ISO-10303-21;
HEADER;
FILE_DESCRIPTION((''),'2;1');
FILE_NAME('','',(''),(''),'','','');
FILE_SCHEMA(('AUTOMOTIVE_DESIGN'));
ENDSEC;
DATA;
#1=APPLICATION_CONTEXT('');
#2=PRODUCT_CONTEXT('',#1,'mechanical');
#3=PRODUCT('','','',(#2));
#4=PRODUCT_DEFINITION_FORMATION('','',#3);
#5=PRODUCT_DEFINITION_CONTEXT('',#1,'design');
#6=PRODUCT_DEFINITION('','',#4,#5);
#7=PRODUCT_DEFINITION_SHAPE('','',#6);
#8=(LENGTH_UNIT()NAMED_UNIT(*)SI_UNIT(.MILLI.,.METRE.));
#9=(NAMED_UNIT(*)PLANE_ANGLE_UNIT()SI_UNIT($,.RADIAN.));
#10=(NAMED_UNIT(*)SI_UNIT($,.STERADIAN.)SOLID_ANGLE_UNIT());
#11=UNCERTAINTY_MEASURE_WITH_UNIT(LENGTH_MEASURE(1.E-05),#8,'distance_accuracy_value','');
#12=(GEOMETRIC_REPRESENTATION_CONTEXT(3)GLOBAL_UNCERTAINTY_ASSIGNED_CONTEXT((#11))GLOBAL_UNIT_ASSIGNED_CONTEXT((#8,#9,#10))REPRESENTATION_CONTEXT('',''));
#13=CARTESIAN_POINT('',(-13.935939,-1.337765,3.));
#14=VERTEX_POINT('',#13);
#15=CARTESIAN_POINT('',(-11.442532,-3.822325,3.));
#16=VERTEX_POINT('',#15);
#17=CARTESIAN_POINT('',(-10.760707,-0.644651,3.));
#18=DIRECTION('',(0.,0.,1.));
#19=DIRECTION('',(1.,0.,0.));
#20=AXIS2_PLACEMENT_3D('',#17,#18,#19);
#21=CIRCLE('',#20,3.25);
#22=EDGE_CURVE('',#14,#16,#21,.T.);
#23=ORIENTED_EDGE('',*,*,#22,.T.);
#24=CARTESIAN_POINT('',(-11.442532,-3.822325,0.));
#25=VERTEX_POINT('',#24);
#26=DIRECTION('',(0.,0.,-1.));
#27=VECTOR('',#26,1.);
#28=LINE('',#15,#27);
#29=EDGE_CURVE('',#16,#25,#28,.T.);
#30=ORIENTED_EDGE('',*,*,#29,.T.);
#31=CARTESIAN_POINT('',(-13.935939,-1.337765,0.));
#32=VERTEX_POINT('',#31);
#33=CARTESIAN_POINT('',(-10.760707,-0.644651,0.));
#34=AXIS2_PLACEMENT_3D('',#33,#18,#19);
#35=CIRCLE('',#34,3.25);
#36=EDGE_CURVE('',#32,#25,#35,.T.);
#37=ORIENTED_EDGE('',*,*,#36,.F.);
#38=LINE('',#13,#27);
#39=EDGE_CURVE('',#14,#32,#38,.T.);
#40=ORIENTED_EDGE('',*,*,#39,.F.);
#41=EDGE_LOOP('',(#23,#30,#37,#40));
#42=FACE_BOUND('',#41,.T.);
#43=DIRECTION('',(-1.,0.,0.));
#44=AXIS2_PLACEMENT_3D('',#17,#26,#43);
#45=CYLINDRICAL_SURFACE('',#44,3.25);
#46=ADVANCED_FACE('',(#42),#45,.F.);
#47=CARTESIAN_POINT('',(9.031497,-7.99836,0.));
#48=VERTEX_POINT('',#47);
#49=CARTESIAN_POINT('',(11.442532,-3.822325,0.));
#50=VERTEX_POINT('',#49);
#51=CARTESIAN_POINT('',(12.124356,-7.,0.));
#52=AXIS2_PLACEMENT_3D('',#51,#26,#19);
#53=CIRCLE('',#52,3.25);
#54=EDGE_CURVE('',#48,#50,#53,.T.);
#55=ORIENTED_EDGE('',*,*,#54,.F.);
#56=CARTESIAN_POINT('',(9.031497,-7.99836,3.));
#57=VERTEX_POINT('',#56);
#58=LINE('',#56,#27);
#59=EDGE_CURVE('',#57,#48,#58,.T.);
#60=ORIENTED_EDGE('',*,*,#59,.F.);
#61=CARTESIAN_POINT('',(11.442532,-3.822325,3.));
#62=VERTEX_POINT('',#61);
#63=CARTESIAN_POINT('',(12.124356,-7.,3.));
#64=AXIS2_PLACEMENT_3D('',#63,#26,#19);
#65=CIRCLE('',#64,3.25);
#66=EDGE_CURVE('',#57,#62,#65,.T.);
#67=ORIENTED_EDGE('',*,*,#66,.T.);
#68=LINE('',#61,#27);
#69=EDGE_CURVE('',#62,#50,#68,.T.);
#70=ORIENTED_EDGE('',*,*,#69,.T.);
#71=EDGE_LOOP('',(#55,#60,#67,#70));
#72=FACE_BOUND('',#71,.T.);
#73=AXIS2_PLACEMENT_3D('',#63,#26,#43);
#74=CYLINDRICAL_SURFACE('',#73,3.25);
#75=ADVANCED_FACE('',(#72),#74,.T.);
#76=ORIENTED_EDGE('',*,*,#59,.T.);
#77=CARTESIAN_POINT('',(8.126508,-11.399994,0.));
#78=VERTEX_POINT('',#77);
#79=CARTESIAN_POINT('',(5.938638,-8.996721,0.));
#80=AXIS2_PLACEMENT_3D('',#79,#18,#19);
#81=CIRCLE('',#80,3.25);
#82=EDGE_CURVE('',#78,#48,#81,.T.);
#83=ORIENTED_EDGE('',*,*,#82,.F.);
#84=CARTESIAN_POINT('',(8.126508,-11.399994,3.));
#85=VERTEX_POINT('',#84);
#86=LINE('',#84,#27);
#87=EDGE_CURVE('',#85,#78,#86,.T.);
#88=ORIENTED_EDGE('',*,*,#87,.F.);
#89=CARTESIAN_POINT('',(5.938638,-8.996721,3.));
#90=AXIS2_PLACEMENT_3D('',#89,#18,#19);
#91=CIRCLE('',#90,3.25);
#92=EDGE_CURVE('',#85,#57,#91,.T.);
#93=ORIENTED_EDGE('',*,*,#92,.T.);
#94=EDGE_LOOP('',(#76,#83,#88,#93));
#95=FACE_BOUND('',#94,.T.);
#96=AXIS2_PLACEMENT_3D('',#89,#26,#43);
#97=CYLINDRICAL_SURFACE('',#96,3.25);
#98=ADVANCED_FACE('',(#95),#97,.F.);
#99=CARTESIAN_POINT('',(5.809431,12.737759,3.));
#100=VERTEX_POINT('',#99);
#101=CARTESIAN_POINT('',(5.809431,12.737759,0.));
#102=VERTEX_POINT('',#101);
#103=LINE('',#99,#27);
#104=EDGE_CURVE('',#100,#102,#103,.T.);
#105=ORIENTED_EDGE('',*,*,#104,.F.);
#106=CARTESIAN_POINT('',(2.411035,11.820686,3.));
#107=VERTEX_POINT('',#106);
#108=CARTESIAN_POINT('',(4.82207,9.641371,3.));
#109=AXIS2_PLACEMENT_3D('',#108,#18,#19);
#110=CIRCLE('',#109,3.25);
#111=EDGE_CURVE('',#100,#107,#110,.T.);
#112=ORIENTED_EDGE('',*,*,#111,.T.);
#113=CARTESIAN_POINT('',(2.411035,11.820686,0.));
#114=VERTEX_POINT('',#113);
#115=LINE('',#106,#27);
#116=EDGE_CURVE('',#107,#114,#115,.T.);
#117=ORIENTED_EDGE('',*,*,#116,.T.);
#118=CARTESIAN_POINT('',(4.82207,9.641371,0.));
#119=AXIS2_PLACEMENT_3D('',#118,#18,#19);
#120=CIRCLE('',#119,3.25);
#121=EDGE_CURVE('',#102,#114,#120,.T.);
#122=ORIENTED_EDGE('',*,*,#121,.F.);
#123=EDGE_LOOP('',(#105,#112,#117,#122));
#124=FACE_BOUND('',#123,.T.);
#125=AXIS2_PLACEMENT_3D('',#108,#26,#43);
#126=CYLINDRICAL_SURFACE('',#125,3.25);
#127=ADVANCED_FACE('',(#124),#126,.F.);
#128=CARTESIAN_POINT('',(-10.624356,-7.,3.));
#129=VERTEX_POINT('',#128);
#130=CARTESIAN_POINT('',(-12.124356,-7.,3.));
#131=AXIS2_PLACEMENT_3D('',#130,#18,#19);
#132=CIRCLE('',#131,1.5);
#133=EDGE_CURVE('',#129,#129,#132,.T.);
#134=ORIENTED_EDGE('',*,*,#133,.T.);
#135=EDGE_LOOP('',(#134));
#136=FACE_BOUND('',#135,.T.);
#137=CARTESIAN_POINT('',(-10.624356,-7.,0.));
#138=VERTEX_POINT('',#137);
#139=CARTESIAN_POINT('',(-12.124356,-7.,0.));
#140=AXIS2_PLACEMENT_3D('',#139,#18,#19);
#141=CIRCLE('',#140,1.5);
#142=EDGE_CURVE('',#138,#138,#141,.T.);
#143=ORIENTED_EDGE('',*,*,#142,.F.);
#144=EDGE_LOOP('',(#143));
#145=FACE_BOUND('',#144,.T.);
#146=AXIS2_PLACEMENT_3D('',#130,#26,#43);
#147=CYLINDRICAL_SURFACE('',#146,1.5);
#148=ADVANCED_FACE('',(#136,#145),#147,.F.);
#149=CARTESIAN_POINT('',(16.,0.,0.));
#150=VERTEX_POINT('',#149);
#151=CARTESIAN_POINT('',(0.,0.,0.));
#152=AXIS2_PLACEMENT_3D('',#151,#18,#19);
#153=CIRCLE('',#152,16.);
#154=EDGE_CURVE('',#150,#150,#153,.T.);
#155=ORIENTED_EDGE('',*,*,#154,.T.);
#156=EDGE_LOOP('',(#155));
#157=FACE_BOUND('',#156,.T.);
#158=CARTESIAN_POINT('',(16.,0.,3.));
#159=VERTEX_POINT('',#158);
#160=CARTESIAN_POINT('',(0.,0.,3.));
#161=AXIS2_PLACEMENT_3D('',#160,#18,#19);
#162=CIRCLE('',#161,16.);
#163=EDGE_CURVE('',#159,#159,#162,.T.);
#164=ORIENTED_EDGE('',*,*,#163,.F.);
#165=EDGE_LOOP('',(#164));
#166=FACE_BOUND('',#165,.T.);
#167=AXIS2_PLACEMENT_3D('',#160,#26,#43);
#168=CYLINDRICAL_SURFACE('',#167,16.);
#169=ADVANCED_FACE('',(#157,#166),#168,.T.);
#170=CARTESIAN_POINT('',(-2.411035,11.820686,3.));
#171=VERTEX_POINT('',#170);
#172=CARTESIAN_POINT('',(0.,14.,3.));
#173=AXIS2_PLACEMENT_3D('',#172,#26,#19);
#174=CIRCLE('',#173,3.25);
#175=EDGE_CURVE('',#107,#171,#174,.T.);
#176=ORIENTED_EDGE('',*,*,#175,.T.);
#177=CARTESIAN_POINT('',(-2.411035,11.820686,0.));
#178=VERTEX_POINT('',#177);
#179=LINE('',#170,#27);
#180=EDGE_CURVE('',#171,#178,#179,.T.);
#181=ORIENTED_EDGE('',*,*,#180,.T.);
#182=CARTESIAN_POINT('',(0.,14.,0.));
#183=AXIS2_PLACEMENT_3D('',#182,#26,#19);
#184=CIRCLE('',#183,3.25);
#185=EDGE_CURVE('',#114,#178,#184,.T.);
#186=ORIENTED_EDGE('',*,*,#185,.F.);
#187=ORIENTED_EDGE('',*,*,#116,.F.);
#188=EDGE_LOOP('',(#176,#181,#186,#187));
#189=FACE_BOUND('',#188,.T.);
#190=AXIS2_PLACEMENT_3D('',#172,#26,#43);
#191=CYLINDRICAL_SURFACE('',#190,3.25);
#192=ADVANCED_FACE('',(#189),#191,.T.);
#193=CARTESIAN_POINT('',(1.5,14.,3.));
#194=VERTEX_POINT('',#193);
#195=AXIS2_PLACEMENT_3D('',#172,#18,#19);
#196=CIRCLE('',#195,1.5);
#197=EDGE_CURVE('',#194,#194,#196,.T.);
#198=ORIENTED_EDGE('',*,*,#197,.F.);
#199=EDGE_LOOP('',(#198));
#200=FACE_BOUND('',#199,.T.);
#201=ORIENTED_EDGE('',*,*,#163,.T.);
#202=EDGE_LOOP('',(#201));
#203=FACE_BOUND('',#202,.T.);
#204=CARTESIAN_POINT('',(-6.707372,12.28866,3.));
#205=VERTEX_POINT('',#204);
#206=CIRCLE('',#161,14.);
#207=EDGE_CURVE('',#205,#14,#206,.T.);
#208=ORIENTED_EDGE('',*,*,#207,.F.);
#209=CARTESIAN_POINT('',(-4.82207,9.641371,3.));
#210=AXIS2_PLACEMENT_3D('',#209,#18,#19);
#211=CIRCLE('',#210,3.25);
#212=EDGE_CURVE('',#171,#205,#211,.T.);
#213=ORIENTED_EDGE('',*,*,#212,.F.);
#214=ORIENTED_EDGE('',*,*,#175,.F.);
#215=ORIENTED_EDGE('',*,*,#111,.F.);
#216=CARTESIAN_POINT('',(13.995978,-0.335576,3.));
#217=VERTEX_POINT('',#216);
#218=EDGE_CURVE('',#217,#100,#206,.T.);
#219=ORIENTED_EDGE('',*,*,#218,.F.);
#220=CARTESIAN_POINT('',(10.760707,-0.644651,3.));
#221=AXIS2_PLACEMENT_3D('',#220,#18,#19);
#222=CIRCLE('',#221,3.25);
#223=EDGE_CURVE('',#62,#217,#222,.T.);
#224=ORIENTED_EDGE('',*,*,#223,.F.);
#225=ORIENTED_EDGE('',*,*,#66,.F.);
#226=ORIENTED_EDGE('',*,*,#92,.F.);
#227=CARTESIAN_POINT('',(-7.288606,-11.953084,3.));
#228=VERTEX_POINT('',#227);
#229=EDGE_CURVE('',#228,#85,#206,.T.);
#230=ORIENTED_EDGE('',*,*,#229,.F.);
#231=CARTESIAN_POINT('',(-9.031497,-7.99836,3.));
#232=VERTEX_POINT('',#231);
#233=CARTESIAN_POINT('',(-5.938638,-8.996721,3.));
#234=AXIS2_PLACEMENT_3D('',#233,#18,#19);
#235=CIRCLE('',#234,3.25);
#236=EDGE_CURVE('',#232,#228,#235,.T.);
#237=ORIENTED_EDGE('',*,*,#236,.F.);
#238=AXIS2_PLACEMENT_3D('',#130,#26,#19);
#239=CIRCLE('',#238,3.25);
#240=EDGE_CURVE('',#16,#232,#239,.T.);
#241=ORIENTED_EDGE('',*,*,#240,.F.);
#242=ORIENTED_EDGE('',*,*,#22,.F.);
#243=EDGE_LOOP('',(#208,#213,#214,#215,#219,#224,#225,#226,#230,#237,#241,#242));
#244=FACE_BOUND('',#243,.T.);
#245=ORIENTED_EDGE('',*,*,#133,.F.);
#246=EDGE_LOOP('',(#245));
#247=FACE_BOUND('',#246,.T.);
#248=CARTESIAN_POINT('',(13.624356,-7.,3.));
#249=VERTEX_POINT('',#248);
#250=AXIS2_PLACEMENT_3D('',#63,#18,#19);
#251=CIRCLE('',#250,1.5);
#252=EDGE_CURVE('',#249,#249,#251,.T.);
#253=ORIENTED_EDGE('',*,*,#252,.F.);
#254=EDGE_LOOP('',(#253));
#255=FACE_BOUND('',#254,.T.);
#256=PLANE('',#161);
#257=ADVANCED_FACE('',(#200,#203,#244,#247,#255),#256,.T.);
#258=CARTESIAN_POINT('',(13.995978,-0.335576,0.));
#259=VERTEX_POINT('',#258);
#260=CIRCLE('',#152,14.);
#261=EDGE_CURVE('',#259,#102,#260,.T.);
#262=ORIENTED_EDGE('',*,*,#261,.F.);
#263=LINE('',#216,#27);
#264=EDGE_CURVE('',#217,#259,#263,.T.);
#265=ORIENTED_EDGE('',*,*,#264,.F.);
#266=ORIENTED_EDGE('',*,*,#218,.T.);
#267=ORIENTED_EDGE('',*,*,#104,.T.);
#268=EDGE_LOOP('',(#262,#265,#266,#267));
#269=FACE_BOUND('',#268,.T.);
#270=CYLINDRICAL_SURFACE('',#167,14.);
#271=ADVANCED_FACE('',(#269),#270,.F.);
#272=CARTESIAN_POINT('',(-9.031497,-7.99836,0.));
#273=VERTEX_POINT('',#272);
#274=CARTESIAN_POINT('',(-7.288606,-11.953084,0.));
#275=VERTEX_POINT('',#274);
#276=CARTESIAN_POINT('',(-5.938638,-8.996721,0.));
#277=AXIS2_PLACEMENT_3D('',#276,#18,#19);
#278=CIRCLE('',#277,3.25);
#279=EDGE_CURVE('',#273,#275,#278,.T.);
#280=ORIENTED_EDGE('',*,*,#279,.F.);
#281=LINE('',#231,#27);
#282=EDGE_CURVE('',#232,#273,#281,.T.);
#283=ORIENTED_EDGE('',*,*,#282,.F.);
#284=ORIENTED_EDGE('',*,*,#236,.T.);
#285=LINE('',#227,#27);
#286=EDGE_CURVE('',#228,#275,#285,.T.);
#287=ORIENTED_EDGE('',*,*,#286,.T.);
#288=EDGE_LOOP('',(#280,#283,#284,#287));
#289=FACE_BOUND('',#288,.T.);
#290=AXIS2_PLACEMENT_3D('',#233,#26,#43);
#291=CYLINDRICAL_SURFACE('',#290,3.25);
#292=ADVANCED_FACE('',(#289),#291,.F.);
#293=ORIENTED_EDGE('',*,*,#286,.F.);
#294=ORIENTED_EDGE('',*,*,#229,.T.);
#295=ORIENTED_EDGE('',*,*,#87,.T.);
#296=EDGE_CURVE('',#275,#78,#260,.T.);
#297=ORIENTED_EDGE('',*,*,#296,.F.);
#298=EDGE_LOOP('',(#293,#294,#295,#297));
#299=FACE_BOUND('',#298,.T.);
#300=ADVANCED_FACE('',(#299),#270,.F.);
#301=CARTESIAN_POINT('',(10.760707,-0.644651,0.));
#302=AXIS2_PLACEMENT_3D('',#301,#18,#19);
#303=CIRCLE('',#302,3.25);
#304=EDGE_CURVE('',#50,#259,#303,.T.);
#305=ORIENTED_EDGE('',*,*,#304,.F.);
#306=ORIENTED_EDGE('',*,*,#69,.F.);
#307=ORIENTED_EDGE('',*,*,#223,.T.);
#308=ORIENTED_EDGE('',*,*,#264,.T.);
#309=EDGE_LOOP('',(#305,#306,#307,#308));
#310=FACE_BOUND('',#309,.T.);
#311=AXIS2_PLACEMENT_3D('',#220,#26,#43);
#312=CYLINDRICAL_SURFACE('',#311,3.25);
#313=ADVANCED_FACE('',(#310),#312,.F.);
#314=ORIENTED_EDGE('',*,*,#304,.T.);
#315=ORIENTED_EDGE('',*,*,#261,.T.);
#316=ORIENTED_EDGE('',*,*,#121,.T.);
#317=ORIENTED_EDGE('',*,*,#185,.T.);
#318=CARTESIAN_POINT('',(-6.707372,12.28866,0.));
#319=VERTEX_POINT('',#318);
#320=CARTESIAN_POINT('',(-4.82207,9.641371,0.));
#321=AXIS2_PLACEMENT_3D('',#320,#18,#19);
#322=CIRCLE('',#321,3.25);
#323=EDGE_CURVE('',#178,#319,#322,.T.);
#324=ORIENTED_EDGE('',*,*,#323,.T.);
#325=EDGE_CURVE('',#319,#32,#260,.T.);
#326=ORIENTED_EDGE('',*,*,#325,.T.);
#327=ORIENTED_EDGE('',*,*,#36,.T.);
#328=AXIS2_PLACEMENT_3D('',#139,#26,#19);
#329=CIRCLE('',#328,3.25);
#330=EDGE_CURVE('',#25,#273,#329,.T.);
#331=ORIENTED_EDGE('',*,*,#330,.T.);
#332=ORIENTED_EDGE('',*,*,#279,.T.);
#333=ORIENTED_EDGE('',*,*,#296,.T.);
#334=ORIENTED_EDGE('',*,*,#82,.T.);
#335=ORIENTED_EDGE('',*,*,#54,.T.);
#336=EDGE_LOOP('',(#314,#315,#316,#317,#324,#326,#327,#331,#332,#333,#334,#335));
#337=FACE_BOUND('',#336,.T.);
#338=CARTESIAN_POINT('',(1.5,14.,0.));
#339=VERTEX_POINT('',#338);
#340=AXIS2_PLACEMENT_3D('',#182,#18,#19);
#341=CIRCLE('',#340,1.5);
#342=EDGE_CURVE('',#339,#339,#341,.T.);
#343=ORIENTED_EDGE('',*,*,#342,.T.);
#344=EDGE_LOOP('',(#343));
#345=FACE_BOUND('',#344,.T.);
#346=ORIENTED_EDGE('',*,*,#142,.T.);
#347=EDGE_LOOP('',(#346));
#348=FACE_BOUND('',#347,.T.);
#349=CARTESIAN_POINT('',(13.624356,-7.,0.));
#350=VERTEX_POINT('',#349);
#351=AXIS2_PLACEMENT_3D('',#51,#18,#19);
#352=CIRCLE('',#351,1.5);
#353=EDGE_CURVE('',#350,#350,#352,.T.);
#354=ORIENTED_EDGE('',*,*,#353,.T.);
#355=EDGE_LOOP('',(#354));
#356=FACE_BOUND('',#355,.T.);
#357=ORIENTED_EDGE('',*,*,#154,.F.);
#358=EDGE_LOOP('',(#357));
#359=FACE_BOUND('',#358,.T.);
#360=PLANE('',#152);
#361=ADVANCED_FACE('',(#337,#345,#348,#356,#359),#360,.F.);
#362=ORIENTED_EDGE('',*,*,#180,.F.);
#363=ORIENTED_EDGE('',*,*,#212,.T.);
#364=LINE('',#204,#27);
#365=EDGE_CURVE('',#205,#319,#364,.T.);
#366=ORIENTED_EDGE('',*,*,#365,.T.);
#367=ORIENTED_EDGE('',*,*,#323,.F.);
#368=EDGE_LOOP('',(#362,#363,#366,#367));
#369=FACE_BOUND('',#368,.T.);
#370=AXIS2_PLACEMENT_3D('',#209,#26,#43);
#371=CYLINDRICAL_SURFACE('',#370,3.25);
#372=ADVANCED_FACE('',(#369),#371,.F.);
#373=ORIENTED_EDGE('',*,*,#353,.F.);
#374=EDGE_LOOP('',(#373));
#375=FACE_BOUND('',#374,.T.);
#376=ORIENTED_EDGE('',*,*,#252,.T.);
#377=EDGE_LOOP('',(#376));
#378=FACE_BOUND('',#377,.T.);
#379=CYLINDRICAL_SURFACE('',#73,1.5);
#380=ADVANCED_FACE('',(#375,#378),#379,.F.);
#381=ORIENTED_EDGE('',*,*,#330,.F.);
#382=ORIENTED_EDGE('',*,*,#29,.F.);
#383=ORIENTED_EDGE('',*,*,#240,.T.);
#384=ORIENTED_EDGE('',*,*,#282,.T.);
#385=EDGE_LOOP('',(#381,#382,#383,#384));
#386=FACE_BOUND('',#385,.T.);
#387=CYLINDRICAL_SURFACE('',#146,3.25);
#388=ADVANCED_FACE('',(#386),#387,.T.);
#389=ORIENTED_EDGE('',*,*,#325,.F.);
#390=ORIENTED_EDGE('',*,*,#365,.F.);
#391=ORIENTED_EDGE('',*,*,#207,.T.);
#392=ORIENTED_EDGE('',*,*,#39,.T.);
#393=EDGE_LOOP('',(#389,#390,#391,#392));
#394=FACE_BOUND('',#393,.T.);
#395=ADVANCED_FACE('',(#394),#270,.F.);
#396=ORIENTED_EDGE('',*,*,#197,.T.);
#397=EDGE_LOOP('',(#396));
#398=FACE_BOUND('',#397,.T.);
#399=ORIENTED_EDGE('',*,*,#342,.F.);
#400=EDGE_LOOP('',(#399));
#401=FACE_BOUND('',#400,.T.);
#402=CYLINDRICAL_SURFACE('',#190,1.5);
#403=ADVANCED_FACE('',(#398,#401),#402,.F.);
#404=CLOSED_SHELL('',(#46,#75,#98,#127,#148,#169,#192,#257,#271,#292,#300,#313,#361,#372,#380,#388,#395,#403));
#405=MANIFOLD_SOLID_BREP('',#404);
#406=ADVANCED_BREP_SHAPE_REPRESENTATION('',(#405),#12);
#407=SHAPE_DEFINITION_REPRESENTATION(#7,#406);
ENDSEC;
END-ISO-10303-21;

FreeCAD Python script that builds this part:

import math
import FreeCAD as App
import Part
import Sketcher
from FreeCAD import Vector
Q = App.Units.Quantity

doc = App.newDocument("Part")
body = doc.addObject("PartDesign::Body", "Body")

# Sketch on XY plane
sketch1 = doc.addObject("Sketcher::SketchObject", "Sketch")
body.addObject(sketch1)
sketch1.AttachmentSupport = (doc.XY_Plane, [""])
sketch1.MapMode = "FlatFace"
sketch1.addGeometry(Part.Circle(Vector(0, 0, 0), Vector(0, 0, 1), 16), False)
sketch1.addGeometry(Part.Circle(Vector(-12.1, -7, 0), Vector(0, 0, 1), 1.5), False)
sketch1.addGeometry(Part.Circle(Vector(12.1, -7, 0), Vector(0, 0, 1), 1.5), False)
sketch1.addGeometry(Part.ArcOfCircle(Part.Circle(Vector(-4.8, 9.6, 0), Vector(0, 0, 1), 3.2), math.radians(42), math.radians(125)), False)
sketch1.addGeometry(Part.ArcOfCircle(Part.Circle(Vector(0, 14, 0), Vector(0, 0, 1), 3.3), math.radians(-138), math.radians(-42)), False)
sketch1.addGeometry(Part.ArcOfCircle(Part.Circle(Vector(4.8, 9.6, 0), Vector(0, 0, 1), 3.2), math.radians(72), math.radians(138)), False)
sketch1.addGeometry(Part.ArcOfCircle(Part.Circle(Vector(0, 0, 0), Vector(0, 0, 1), 14), math.radians(-1), math.radians(65)), False)
sketch1.addGeometry(Part.ArcOfCircle(Part.Circle(Vector(10.8, -0.6, 0), Vector(0, 0, 1), 3.2), math.radians(-78), math.radians(5)), False)
sketch1.addGeometry(Part.ArcOfCircle(Part.Circle(Vector(12.1, -7, 0), Vector(0, 0, 1), 3.3), math.radians(102), math.radians(198)), False)
sketch1.addGeometry(Part.ArcOfCircle(Part.Circle(Vector(5.9, -9, 0), Vector(0, 0, 1), 3.2), math.radians(-48), math.radians(18)), False)
sketch1.addGeometry(Part.ArcOfCircle(Part.Circle(Vector(0, 0, 0), Vector(0, 0, 1), 14), math.radians(-121), math.radians(-55)), False)
sketch1.addGeometry(Part.ArcOfCircle(Part.Circle(Vector(-5.9, -9, 0), Vector(0, 0, 1), 3.2), math.radians(162), math.radians(245)), False)
sketch1.addGeometry(Part.ArcOfCircle(Part.Circle(Vector(-12.1, -7, 0), Vector(0, 0, 1), 3.3), math.radians(-18), math.radians(78)), False)
sketch1.addGeometry(Part.ArcOfCircle(Part.Circle(Vector(-10.8, -0.6, 0), Vector(0, 0, 1), 3.2), math.radians(-168), math.radians(-102)), False)
sketch1.addGeometry(Part.ArcOfCircle(Part.Circle(Vector(0, 0, 0), Vector(0, 0, 1), 14), math.radians(119), math.radians(185)), False)
sketch1.addGeometry(Part.Circle(Vector(0, 14, 0), Vector(0, 0, 1), 1.5), False)
sketch1.addConstraint(Sketcher.Constraint("Tangent", 3, 1, 4, 1))
sketch1.addConstraint(Sketcher.Constraint("Tangent", 4, 2, 5, 2))
sketch1.addConstraint(Sketcher.Constraint("Coincident", 5, 1, 6, 2))
sketch1.addConstraint(Sketcher.Constraint("Coincident", 6, 1, 7, 2))
sketch1.addConstraint(Sketcher.Constraint("Tangent", 7, 1, 8, 1))
sketch1.addConstraint(Sketcher.Constraint("Tangent", 8, 2, 9, 2))
sketch1.addConstraint(Sketcher.Constraint("Coincident", 9, 1, 10, 2))
sketch1.addConstraint(Sketcher.Constraint("Coincident", 10, 1, 11, 2))
sketch1.addConstraint(Sketcher.Constraint("Tangent", 11, 1, 12, 1))
sketch1.addConstraint(Sketcher.Constraint("Tangent", 12, 2, 13, 2))
sketch1.addConstraint(Sketcher.Constraint("Coincident", 13, 1, 14, 2))
sketch1.addConstraint(Sketcher.Constraint("Coincident", 14, 1, 3, 2))
sketch1.addConstraint(Sketcher.Constraint("Coincident", 0, 3, -1, 1))
sketch1.addConstraint(Sketcher.Constraint("Coincident", 6, 3, -1, 1))
sketch1.addConstraint(Sketcher.Constraint("Coincident", 10, 3, -1, 1))
sketch1.addConstraint(Sketcher.Constraint("Coincident", 14, 3, -1, 1))
sketch1.addConstraint(Sketcher.Constraint("Coincident", 8, 3, 2, 3))
sketch1.addConstraint(Sketcher.Constraint("Coincident", 12, 3, 1, 3))
sketch1.addConstraint(Sketcher.Constraint("Coincident", 15, 3, 4, 3))
sketch1.addConstraint(Sketcher.Constraint("Equal", 1, 2))
sketch1.addConstraint(Sketcher.Constraint("Equal", 3, 4))
sketch1.addConstraint(Sketcher.Constraint("Equal", 4, 5))
sketch1.addConstraint(Sketcher.Constraint("Equal", 5, 7))
sketch1.addConstraint(Sketcher.Constraint("Equal", 7, 8))
sketch1.addConstraint(Sketcher.Constraint("Equal", 8, 9))
sketch1.addConstraint(Sketcher.Constraint("Equal", 6, 10))
sketch1.addConstraint(Sketcher.Constraint("Equal", 9, 11))
sketch1.addConstraint(Sketcher.Constraint("Equal", 11, 12))
sketch1.addConstraint(Sketcher.Constraint("Equal", 12, 13))
sketch1.addConstraint(Sketcher.Constraint("Equal", 10, 14))
sketch1.addConstraint(Sketcher.Constraint("Equal", 2, 15))
sketch1.addConstraint(Sketcher.Constraint("Symmetric", 1, 3, 2, 3, -2))
sketch1.addConstraint(Sketcher.Constraint("Symmetric", 3, 3, 5, 3, -2))
sketch1.addConstraint(Sketcher.Constraint("Horizontal", 9, 3, 11, 3))
sketch1.addConstraint(Sketcher.Constraint("Horizontal", 7, 3, 13, 3))
sketch1.addConstraint(Sketcher.Constraint("Diameter", 0, Q("32 mm")))
sketch1.addConstraint(Sketcher.Constraint("Diameter", 1, Q("3 mm")))
sketch1.addConstraint(Sketcher.Constraint("Radius", 6, Q("14 mm")))
sketch1.addConstraint(Sketcher.Constraint("Radius", 3, Q("3.25 mm")))
sketch1.addConstraint(Sketcher.Constraint("DistanceY", 1, 3, -1, 1, Q("7 mm")))
sketch1.addConstraint(Sketcher.Constraint("DistanceY", -1, 1, 4, 3, Q("14 mm")))
sketch1.addConstraint(Sketcher.Constraint("DistanceX", 13, 3, 10, 1, Q("3.472101 mm")))
sketch1.addConstraint(Sketcher.Constraint("DistanceX", 14, 1, 3, 3, Q("1.885302 mm")))
sketch1.addConstraint(Sketcher.Constraint("DistanceY", 7, 3, -1, 1, Q("0.644651 mm")))
sketch1.addConstraint(Sketcher.Constraint("DistanceY", 9, 3, -1, 1, Q("8.996721 mm")))
pad1 = doc.addObject("PartDesign::Pad", "Pad")
body.addObject(pad1)
pad1.Profile = sketch1
pad1.Length = 3

doc.recompute()
